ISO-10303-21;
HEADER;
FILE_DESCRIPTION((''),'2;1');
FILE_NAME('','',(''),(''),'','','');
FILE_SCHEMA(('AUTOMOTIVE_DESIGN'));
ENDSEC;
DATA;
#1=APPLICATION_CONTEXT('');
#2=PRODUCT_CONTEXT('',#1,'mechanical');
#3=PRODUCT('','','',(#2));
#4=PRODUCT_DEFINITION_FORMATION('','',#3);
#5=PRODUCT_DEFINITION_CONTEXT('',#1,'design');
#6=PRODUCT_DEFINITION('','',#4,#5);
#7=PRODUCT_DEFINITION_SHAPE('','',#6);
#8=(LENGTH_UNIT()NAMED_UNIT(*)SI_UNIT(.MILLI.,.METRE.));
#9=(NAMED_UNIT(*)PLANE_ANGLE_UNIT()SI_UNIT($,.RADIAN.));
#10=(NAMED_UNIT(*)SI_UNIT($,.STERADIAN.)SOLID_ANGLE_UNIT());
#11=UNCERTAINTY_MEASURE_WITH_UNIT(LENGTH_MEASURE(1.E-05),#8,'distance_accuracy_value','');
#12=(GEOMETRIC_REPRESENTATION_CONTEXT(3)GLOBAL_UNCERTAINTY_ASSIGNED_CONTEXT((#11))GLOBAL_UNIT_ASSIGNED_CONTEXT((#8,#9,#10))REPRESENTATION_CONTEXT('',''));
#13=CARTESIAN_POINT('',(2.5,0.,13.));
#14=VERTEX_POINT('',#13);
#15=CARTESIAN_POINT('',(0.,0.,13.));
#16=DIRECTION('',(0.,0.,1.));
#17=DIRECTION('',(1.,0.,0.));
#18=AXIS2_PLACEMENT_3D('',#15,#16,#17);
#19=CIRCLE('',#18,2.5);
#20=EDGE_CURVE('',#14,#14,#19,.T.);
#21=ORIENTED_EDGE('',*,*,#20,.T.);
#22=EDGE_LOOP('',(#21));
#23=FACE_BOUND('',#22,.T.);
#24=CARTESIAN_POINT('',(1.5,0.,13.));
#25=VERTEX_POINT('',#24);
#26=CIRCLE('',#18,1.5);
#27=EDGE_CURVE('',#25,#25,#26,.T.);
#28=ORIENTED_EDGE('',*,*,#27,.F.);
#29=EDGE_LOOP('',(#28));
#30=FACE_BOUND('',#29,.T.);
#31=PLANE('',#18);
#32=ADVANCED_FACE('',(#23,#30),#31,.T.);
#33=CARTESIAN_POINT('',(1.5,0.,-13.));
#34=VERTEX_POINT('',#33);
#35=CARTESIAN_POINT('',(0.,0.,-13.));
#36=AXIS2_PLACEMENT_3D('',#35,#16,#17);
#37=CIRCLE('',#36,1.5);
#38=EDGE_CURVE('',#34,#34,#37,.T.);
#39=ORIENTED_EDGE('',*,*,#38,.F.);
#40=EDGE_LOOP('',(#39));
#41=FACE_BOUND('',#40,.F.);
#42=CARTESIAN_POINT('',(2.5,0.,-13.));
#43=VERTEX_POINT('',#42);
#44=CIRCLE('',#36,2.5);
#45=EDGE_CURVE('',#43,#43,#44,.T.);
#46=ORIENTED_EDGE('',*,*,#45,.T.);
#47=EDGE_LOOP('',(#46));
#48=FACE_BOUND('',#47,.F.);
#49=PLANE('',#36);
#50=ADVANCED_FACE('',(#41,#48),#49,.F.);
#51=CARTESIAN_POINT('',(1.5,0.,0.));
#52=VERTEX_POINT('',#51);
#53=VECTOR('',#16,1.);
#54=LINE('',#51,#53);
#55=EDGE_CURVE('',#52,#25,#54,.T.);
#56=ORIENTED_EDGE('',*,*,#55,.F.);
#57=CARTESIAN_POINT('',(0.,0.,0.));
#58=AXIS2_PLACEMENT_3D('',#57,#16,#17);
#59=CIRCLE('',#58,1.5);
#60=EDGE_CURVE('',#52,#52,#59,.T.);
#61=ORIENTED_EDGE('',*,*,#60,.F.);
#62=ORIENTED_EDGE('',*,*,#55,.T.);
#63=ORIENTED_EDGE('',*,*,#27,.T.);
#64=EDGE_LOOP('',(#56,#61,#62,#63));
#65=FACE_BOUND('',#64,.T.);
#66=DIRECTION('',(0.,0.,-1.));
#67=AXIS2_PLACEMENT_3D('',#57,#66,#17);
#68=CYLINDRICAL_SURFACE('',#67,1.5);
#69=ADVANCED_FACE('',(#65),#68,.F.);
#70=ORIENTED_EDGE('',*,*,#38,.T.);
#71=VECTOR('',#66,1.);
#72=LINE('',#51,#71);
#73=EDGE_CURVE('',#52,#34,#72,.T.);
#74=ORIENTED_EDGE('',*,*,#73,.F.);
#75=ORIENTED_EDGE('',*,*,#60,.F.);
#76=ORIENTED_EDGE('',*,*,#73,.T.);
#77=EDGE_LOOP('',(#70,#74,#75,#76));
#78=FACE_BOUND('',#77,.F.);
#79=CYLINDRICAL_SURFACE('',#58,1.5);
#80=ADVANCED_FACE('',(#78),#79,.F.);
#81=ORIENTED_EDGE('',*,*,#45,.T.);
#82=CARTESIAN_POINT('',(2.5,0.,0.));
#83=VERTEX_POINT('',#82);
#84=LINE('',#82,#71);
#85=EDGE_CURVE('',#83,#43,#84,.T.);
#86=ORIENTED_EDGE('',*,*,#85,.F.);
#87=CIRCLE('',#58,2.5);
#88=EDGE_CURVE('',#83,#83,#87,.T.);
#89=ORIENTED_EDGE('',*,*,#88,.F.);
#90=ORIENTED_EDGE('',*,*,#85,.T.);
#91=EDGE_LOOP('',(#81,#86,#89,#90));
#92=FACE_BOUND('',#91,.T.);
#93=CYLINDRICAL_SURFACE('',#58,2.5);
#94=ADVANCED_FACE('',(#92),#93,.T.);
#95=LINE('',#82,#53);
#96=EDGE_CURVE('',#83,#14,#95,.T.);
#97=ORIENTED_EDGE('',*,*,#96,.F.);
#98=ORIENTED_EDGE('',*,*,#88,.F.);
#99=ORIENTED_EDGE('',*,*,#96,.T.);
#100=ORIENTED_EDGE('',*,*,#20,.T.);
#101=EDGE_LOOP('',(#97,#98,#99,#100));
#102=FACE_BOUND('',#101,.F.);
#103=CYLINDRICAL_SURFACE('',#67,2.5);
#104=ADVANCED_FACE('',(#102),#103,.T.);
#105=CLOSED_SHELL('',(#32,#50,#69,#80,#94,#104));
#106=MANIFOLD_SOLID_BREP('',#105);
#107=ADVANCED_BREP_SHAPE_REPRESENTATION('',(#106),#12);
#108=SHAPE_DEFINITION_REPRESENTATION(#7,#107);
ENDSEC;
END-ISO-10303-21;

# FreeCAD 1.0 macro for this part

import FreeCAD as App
import Part
import Sketcher

doc = App.newDocument("Part")
params = doc.addObject("Spreadsheet::Sheet", "Params")
for row, (alias, value) in enumerate([
    ("sketch1_diameter", "5 mm"),
    ("sketch1_diameter2", "3 mm"),
    ("pad1_length", "26 mm"),
], start=1):
    params.set(f"A{row}", alias)
    params.set(f"B{row}", "=" + value)
    params.setAlias(f"B{row}", alias)

body = doc.addObject("PartDesign::Body", "Body")

sketch1 = body.newObject("Sketcher::SketchObject", "Sketch")
sketch1.AttachmentSupport = (doc.getObject("XY_Plane"), [""])
sketch1.MapMode = "FlatFace"
sketch1.addGeometry([
    Part.Circle(App.Vector(0, 0, 0), App.Vector(0, 0, 1), 2.5),
    Part.Circle(App.Vector(0, 0, 0), App.Vector(0, 0, 1), 1.5),
], False)
sketch1.addConstraint([
    Sketcher.Constraint("Coincident", 0, 3, -1, 1),
    Sketcher.Constraint("Coincident", 1, 3, -1, 1),
    Sketcher.Constraint("Diameter", 0, 5.0),
    Sketcher.Constraint("Diameter", 1, 3.0),
])
sketch1.setExpression("Constraints[2]", "Params.sketch1_diameter")
sketch1.setExpression("Constraints[3]", "Params.sketch1_diameter2")
pad1 = body.newObject("PartDesign::Pad", "Pad")
pad1.Profile = sketch1
pad1.setExpression("Length", "Params.pad1_length")
pad1.Midplane = True

doc.recompute()
